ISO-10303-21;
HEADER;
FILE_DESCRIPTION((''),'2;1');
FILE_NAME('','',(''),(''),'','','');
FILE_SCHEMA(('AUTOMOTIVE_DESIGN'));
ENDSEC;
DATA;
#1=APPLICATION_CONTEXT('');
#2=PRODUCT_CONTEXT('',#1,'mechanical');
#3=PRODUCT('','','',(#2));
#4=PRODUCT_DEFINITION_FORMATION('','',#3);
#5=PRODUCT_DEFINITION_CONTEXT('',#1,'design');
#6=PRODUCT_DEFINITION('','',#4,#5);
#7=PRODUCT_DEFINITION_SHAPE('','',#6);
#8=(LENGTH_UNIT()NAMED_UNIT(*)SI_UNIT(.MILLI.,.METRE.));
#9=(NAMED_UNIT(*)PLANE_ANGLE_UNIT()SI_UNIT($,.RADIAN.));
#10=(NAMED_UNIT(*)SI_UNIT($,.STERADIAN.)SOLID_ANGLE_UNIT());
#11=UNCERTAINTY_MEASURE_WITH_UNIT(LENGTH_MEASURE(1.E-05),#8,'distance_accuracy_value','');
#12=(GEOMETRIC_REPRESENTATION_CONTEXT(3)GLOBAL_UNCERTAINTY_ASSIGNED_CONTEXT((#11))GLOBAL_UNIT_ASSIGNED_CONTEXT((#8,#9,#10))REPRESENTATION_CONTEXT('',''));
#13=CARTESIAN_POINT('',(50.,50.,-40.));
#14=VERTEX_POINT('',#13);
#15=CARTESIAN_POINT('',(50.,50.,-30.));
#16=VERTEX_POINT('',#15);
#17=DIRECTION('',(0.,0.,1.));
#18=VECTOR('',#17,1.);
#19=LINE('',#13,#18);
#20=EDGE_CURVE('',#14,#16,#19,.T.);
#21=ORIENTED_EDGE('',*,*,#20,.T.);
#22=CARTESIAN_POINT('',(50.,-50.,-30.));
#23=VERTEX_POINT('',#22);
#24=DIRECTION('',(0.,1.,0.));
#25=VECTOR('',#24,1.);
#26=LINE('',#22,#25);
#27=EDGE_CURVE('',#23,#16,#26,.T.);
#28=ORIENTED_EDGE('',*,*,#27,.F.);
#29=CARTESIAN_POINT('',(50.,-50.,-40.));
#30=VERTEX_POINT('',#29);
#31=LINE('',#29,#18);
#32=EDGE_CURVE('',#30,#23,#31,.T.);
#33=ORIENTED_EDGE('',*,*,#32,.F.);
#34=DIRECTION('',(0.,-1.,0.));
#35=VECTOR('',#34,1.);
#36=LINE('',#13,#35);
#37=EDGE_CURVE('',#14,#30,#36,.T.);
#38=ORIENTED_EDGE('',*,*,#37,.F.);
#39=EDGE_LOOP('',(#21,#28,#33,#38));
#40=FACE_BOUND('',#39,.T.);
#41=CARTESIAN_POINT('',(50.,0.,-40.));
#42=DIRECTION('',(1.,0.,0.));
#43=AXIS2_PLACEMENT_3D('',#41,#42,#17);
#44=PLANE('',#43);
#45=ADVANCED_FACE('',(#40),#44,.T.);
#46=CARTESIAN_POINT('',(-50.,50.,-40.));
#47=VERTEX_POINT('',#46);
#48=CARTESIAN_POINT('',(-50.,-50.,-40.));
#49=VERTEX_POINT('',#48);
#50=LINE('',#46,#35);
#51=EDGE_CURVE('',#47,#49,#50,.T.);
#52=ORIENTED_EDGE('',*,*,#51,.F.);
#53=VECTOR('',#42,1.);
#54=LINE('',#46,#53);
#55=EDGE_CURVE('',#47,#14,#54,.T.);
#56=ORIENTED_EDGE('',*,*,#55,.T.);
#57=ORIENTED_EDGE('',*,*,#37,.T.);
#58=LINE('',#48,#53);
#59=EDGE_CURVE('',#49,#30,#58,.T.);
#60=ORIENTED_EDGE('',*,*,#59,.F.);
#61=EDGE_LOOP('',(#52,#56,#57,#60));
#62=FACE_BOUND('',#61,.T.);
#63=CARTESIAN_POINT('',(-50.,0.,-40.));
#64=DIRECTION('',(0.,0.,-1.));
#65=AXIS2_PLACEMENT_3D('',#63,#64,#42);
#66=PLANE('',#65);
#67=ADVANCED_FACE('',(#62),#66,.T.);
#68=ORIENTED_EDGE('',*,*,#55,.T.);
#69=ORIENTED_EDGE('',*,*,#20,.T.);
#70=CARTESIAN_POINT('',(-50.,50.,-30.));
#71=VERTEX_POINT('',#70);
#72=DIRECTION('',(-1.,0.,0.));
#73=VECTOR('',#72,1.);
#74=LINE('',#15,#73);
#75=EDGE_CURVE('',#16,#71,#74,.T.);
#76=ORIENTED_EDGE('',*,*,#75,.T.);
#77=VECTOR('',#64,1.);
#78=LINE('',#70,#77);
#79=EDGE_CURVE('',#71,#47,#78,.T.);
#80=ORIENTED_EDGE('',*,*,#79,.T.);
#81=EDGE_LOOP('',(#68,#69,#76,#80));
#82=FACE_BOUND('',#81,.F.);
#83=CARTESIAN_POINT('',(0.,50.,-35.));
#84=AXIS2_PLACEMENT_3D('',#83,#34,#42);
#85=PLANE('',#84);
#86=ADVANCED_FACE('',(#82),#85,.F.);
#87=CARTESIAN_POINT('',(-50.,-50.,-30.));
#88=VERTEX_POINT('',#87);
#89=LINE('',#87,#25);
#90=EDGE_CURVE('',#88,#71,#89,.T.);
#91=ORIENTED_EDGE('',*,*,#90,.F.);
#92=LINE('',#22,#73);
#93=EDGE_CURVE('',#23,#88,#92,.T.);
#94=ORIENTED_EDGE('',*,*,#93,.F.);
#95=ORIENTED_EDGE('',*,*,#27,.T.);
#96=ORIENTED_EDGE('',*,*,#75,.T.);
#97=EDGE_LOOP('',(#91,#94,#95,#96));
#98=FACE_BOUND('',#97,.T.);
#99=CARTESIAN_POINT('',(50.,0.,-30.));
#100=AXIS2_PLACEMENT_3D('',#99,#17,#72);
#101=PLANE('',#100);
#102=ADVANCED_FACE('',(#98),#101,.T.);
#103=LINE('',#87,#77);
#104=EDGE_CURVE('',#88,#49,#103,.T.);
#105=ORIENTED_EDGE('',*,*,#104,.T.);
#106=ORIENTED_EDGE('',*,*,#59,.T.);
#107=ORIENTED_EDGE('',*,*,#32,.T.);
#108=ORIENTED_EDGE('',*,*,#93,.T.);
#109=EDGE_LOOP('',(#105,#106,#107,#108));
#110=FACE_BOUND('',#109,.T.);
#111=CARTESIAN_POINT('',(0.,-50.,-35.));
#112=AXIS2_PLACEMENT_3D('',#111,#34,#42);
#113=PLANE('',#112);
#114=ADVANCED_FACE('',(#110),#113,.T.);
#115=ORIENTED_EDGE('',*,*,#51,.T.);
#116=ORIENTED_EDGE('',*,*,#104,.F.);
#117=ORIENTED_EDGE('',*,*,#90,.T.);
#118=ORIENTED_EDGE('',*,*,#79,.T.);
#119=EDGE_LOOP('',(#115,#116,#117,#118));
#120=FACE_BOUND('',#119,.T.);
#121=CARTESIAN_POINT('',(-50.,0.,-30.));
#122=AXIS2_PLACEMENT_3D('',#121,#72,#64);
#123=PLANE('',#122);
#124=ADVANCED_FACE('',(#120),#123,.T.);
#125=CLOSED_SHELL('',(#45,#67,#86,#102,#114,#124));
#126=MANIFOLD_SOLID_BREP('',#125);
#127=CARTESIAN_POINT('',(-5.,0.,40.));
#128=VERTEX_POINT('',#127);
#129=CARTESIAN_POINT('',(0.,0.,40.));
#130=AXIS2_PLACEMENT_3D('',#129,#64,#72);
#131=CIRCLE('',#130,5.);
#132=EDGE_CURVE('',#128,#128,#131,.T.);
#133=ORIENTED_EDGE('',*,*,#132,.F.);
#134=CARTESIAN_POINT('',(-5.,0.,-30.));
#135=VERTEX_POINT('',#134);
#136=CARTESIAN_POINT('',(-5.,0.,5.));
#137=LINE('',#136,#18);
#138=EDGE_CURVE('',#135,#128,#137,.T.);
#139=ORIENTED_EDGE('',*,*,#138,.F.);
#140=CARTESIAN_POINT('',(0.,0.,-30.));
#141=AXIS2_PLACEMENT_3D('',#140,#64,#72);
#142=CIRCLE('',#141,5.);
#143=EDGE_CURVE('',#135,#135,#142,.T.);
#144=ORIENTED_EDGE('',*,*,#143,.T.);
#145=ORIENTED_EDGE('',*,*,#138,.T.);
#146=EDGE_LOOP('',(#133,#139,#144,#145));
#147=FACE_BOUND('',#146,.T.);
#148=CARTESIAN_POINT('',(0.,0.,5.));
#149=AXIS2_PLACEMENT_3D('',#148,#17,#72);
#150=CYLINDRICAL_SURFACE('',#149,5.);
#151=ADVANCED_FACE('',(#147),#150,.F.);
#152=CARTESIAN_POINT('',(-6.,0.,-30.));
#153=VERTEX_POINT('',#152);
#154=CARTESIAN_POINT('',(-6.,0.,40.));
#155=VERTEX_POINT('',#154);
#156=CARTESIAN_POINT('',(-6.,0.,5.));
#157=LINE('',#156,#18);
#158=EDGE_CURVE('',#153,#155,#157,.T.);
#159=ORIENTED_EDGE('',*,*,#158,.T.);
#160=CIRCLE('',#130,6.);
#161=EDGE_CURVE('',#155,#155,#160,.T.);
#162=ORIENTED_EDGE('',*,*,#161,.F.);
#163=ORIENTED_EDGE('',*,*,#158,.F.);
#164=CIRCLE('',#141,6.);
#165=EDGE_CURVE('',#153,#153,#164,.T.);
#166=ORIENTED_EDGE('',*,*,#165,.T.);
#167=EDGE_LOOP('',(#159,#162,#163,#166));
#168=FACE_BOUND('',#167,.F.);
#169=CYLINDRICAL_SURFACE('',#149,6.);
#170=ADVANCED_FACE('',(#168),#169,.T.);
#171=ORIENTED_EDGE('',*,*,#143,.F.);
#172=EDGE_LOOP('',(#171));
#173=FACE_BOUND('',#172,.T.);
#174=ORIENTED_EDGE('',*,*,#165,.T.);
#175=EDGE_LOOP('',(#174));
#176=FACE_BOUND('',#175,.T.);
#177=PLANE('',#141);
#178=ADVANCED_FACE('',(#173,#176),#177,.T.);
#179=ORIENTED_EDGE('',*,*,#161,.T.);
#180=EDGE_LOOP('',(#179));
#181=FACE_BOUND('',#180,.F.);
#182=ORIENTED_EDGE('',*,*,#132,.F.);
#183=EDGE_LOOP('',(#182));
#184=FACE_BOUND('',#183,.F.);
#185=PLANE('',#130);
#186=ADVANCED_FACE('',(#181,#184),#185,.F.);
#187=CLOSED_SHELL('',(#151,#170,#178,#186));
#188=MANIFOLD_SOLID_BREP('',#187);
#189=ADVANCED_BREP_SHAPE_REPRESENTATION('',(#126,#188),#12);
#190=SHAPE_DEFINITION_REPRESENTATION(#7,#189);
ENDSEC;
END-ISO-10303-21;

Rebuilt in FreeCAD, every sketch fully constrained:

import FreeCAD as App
import Part
import Sketcher
from FreeCAD import Vector
Q = App.Units.Quantity


def add_polygon(sketch, points):
    """Adds a closed chain of lines whose ends are joined by coincident constraints."""
    first, n = sketch.GeometryCount, len(points)
    for a, b in zip(points, points[1:] + points[:1]):
        sketch.addGeometry(Part.LineSegment(App.Vector(*a, 0), App.Vector(*b, 0)), False)
    for i in range(n):
        sketch.addConstraint(Sketcher.Constraint("Coincident", first + i, 2, first + (i + 1) % n, 1))

doc = App.newDocument("Part")
body = doc.addObject("PartDesign::Body", "Body")

sketch1 = body.newObject("Sketcher::SketchObject", "Sketch")
sketch1.AttachmentSupport = (doc.getObject("XZ_Plane"), [""])
sketch1.MapMode = "FlatFace"
add_polygon(sketch1, [(-50, -30), (-50, -40), (50, -40), (50, -30)])
sketch1.addConstraint(Sketcher.Constraint("Vertical", 0))
sketch1.addConstraint(Sketcher.Constraint("Horizontal", 1))
sketch1.addConstraint(Sketcher.Constraint("Vertical", 2))
sketch1.addConstraint(Sketcher.Constraint("Horizontal", 3))
sketch1.addConstraint(Sketcher.Constraint("DistanceX", 1, 1, 1, 2, Q("100 mm")))
sketch1.addConstraint(Sketcher.Constraint("DistanceY", 0, 2, 0, 1, Q("10 mm")))
sketch1.addConstraint(Sketcher.Constraint("DistanceX", 0, 2, -1, 1, Q("50 mm")))
sketch1.addConstraint(Sketcher.Constraint("DistanceY", 0, 2, -1, 1, Q("40 mm")))
pad1 = body.newObject("PartDesign::Pad", "Pad")
pad1.Profile = sketch1
pad1.Length = 100
pad1.Midplane = True
body2 = doc.addObject("PartDesign::Body", "Body001")

sketch2 = body2.newObject("Sketcher::SketchObject", "Sketch001")
sketch2.AttachmentSupport = (doc.getObject("XZ_Plane001"), [""])
sketch2.MapMode = "FlatFace"
add_polygon(sketch2, [(-6, 40), (-6, -30), (-5, -30), (-5, 40)])
sketch2.addConstraint(Sketcher.Constraint("Vertical", 0))
sketch2.addConstraint(Sketcher.Constraint("Horizontal", 1))
sketch2.addConstraint(Sketcher.Constraint("Vertical", 2))
sketch2.addConstraint(Sketcher.Constraint("Horizontal", 3))
sketch2.addConstraint(Sketcher.Constraint("DistanceX", 1, 1, 1, 2, Q("1 mm")))
sketch2.addConstraint(Sketcher.Constraint("DistanceY", 0, 2, 0, 1, Q("70 mm")))
sketch2.addConstraint(Sketcher.Constraint("DistanceX", 0, 2, -1, 1, Q("6 mm")))
sketch2.addConstraint(Sketcher.Constraint("DistanceY", 0, 2, -1, 1, Q("30 mm")))
revolution = body2.newObject("PartDesign::Revolution", "Revolution")
revolution.Profile = sketch2
revolution.ReferenceAxis = (sketch2, ["V_Axis"])
revolution.Angle = 360

doc.recompute()
